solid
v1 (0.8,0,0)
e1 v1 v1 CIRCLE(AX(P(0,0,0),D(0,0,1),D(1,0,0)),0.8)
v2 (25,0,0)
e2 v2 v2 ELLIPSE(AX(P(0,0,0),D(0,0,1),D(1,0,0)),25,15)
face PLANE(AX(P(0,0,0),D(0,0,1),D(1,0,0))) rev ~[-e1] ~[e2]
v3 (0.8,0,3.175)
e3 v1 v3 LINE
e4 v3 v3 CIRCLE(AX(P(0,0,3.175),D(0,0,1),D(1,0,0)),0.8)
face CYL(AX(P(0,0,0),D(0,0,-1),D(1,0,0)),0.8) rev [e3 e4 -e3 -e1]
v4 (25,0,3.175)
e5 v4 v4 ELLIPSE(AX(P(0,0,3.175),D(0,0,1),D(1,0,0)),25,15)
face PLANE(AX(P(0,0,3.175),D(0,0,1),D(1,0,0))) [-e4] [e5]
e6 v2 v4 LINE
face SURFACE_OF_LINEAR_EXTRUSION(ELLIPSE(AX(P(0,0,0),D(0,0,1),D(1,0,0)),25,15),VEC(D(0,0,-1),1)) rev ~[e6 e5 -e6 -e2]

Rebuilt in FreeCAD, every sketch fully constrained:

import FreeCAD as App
import Part
import Sketcher

V = App.Vector
Q = App.Units.Quantity

doc = App.newDocument("Part")
body = doc.addObject("PartDesign::Body", "Body")

# Sketch on XY plane
sketch1 = doc.addObject("Sketcher::SketchObject", "Sketch")
body.addObject(sketch1)
sketch1.AttachmentSupport = (doc.XY_Plane, [""])
sketch1.MapMode = "FlatFace"
sketch1.addGeometry([
    Part.Ellipse(V(25, 0, 0), V(0, 15, 0), V(0, 0, 0)),
    Part.Circle(V(0, 0, 0), V(0, 0, 1), 0.8),
], False)
sketch1.addConstraint([
    Sketcher.Constraint("Block", 0),
    Sketcher.Constraint("Coincident", 1, 3, -1, 1),
    Sketcher.Constraint("Diameter", 1, Q("0.063 in")),
])
pad1 = doc.addObject("PartDesign::Pad", "Pad")
body.addObject(pad1)
pad1.Profile = sketch1
pad1.Length = Q("0.125 in")

doc.recompute()
